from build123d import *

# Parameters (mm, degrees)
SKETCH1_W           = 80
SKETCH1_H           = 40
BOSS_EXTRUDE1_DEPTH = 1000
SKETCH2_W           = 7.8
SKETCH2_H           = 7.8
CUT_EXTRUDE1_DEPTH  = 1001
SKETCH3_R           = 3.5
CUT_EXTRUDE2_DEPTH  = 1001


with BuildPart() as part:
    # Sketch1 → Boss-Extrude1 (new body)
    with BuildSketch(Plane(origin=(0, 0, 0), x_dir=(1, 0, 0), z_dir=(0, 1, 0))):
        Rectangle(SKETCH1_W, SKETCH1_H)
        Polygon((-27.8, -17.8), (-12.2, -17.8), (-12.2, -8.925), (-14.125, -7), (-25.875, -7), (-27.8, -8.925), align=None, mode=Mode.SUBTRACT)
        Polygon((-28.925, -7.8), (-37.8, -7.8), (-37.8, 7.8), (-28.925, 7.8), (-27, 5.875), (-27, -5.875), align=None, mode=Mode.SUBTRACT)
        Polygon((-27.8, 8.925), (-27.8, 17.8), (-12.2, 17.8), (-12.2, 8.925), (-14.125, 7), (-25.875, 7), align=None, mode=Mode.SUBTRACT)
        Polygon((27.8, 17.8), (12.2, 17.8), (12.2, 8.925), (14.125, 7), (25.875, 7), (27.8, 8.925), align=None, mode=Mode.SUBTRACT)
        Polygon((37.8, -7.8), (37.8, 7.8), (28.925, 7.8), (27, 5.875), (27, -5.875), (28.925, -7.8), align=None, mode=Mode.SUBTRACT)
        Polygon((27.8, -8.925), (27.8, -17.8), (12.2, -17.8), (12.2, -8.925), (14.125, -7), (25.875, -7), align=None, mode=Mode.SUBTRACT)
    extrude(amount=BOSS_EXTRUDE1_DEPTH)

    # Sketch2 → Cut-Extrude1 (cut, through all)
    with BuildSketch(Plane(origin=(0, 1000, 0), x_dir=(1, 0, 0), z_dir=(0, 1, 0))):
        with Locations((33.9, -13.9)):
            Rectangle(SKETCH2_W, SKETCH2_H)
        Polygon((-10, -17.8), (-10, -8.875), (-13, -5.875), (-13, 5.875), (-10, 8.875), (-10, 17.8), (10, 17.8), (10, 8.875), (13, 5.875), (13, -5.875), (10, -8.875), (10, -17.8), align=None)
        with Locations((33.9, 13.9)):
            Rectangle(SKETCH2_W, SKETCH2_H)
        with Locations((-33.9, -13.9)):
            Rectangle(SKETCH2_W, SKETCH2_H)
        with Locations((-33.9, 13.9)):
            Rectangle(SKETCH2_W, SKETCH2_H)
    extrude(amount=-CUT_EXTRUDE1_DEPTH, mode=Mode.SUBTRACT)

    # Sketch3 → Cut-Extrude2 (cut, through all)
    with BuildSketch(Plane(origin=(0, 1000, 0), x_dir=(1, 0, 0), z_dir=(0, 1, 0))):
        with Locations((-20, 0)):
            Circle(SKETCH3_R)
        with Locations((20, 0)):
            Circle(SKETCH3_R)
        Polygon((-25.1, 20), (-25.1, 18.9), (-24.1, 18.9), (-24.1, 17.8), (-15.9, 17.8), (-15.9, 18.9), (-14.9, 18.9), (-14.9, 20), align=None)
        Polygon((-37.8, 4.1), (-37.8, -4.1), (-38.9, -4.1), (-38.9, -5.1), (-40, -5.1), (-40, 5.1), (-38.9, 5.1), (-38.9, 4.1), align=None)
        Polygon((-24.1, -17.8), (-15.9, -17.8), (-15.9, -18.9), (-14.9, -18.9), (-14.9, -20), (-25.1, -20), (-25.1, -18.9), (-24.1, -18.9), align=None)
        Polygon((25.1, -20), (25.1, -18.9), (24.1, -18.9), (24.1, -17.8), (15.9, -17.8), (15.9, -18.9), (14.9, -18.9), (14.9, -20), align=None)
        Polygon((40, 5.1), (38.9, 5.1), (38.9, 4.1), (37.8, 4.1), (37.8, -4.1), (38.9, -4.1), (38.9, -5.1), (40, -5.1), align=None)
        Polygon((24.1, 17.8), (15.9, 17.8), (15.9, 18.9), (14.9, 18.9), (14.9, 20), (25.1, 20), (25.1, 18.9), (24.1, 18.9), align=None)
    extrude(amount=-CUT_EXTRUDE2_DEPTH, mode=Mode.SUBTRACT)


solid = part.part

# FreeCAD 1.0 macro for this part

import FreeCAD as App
import Part
import Sketcher


def add_polygon(sketch, points):
    """Adds a closed chain of lines whose ends are joined by coincident constraints."""
    first, n = sketch.GeometryCount, len(points)
    for a, b in zip(points, points[1:] + points[:1]):
        sketch.addGeometry(Part.LineSegment(App.Vector(*a, 0), App.Vector(*b, 0)), False)
    for i in range(n):
        sketch.addConstraint(Sketcher.Constraint("Coincident", first + i, 2, first + (i + 1) % n, 1))

doc = App.newDocument("Part")
body = doc.addObject("PartDesign::Body", "Body")

sketch1 = doc.addObject("Sketcher::SketchObject", "Sketch")
body.addObject(sketch1)
sketch1.AttachmentSupport = (doc.XZ_Plane, [""])
sketch1.MapMode = "FlatFace"
add_polygon(sketch1, [(-40, -20), (-40, 20), (40, 20), (40, -20)])
add_polygon(sketch1, [(-12.2, 17.8), (-27.8, 17.8), (-27.8, 8.925), (-25.875, 7), (-14.125, 7), (-12.2, 8.925)])
add_polygon(sketch1, [(25.875, 7), (27.8, 8.925), (27.8, 17.8), (12.2, 17.8), (12.2, 8.925), (14.125, 7)])
add_polygon(sketch1, [(-27, 5.875), (-28.925, 7.8), (-37.8, 7.8), (-37.8, -7.8), (-28.925, -7.8), (-27, -5.875)])
add_polygon(sketch1, [(-25.875, -7), (-27.8, -8.925), (-27.8, -17.8), (-12.2, -17.8), (-12.2, -8.925), (-14.125, -7)])
add_polygon(sketch1, [(37.8, -7.8), (37.8, 7.8), (28.925, 7.8), (27, 5.875), (27, -5.875), (28.925, -7.8)])
add_polygon(sketch1, [(12.2, -17.8), (27.8, -17.8), (27.8, -8.925), (25.875, -7), (14.125, -7), (12.2, -8.925)])
sketch1.addConstraint([
    Sketcher.Constraint("Vertical", 0),
    Sketcher.Constraint("Horizontal", 1),
    Sketcher.Constraint("Vertical", 2),
    Sketcher.Constraint("Horizontal", 3),
    Sketcher.Constraint("Horizontal", 4),
    Sketcher.Constraint("Vertical", 5),
    Sketcher.Constraint("Horizontal", 7),
    Sketcher.Constraint("Vertical", 9),
    Sketcher.Constraint("Vertical", 11),
    Sketcher.Constraint("Horizontal", 12),
    Sketcher.Constraint("Vertical", 13),
    Sketcher.Constraint("Horizontal", 15),
    Sketcher.Constraint("Horizontal", 17),
    Sketcher.Constraint("Vertical", 18),
    Sketcher.Constraint("Horizontal", 19),
    Sketcher.Constraint("Vertical", 21),
    Sketcher.Constraint("Vertical", 23),
    Sketcher.Constraint("Horizontal", 24),
    Sketcher.Constraint("Vertical", 25),
    Sketcher.Constraint("Horizontal", 27),
    Sketcher.Constraint("Vertical", 28),
    Sketcher.Constraint("Horizontal", 29),
    Sketcher.Constraint("Vertical", 31),
    Sketcher.Constraint("Horizontal", 33),
    Sketcher.Constraint("Horizontal", 34),
    Sketcher.Constraint("Vertical", 35),
    Sketcher.Constraint("Horizontal", 37),
    Sketcher.Constraint("Vertical", 39),
    Sketcher.Constraint("Symmetric", 0, 2, 2, 2, -1, 1),
    Sketcher.Constraint("Symmetric", 10, 2, 22, 2, -1, 1),
    Sketcher.Constraint("Symmetric", 12, 2, 24, 2, -1, 1),
    Sketcher.Constraint("Symmetric", 14, 2, 26, 2, -1, 1),
    Sketcher.Constraint("Symmetric", 18, 2, 28, 2, -1, 1),
    Sketcher.Constraint("Symmetric", 20, 2, 30, 2, -1, 1),
    Sketcher.Constraint("Symmetric", 16, 2, 32, 2, -1, 1),
    Sketcher.Constraint("Symmetric", 4, 2, 34, 2, -1, 1),
    Sketcher.Constraint("Symmetric", 6, 2, 36, 2, -1, 1),
    Sketcher.Constraint("Symmetric", 8, 2, 38, 2, -1, 1),
    Sketcher.Constraint("Symmetric", 5, 2, 10, 2, -2),
    Sketcher.Constraint("Symmetric", 9, 2, 12, 2, -2),
    Sketcher.Constraint("Symmetric", 7, 2, 14, 2, -2),
    Sketcher.Constraint("Symmetric", 16, 2, 29, 2, -2),
    Sketcher.Constraint("Perpendicular", 6, 8),
    Sketcher.Constraint("Parallel", 8, 10),
    Sketcher.Constraint("Perpendicular", 10, 14),
    Sketcher.Constraint("Parallel", 14, 16),
    Sketcher.Constraint("Perpendicular", 16, 20),
    Sketcher.Constraint("Parallel", 20, 22),
    Sketcher.Constraint("Perpendicular", 22, 26),
    Sketcher.Constraint("Perpendicular", 26, 30),
    Sketcher.Constraint("Perpendicular", 30, 32),
    Sketcher.Constraint("Parallel", 32, 36),
    Sketcher.Constraint("Perpendicular", 36, 38),
    Sketcher.Constraint("Horizontal", 5, 2, 8, 2),
    Sketcher.Constraint("Horizontal", 10, 2, 13, 2),
    Sketcher.Constraint("Equal", 33, 5),
    Sketcher.Constraint("Equal", 34, 18),
    Sketcher.Constraint("Equal", 37, 21),
    Sketcher.Constraint("DistanceX", 1, 1, 1, 2, 80.0),
    Sketcher.Constraint("DistanceY", 0, 1, 0, 2, 40.0),
    Sketcher.Constraint("DistanceX", 4, 2, 4, 1, 15.6),
    Sketcher.Constraint("DistanceY", -1, 1, 6, 2, 7.0),
    Sketcher.Constraint("DistanceX", 20, 2, -1, 1, 27.0),
    Sketcher.Constraint("DistanceX", 8, 2, 10, 2, 40.0),
    Sketcher.Constraint("DistanceY", 16, 2, 4, 2, 10.0),
    Sketcher.Constraint("DistanceX", 7, 1, 7, 2, 11.75),
])
pad1 = doc.addObject("PartDesign::Pad", "Pad")
body.addObject(pad1)
pad1.Profile = sketch1
pad1.Length = 1000
pad1.Reversed = True

sketch2 = doc.addObject("Sketcher::SketchObject", "Sketch001")
body.addObject(sketch2)
sketch2.AttachmentSupport = (doc.XZ_Plane, [""])
sketch2.MapMode = "FlatFace"
sketch2.AttachmentOffset = App.Placement(App.Vector(0, 0, -1000), App.Rotation())
add_polygon(sketch2, [(30, 10), (30, 17.8), (37.8, 17.8), (37.8, 10)])
add_polygon(sketch2, [(-10, 8.875), (-10, 17.8), (10, 17.8), (10, 8.875), (13, 5.875), (13, -5.875), (10, -8.875), (10, -17.8), (-10, -17.8), (-10, -8.875), (-13, -5.875), (-13, 5.875)])
add_polygon(sketch2, [(30, -17.8), (30, -10), (37.8, -10), (37.8, -17.8)])
add_polygon(sketch2, [(-37.8, 10), (-37.8, 17.8), (-30, 17.8), (-30, 10)])
add_polygon(sketch2, [(-37.8, -17.8), (-37.8, -10), (-30, -10), (-30, -17.8)])
sketch2.addConstraint([
    Sketcher.Constraint("Vertical", 0),
    Sketcher.Constraint("Horizontal", 1),
    Sketcher.Constraint("Vertical", 2),
    Sketcher.Constraint("Horizontal", 3),
    Sketcher.Constraint("Vertical", 4),
    Sketcher.Constraint("Horizontal", 5),
    Sketcher.Constraint("Vertical", 6),
    Sketcher.Constraint("Vertical", 8),
    Sketcher.Constraint("Vertical", 10),
    Sketcher.Constraint("Horizontal", 11),
    Sketcher.Constraint("Vertical", 12),
    Sketcher.Constraint("Vertical", 14),
    Sketcher.Constraint("Vertical", 16),
    Sketcher.Constraint("Horizontal", 17),
    Sketcher.Constraint("Vertical", 18),
    Sketcher.Constraint("Horizontal", 19),
    Sketcher.Constraint("Vertical", 20),
    Sketcher.Constraint("Horizontal", 21),
    Sketcher.Constraint("Vertical", 22),
    Sketcher.Constraint("Horizontal", 23),
    Sketcher.Constraint("Vertical", 24),
    Sketcher.Constraint("Horizontal", 25),
    Sketcher.Constraint("Vertical", 26),
    Sketcher.Constraint("Horizontal", 27),
    Sketcher.Constraint("Symmetric", 4, 2, 10, 2, -1, 1),
    Sketcher.Constraint("Symmetric", 6, 2, 12, 2, -1, 1),
    Sketcher.Constraint("Symmetric", 7, 2, 13, 2, -1, 1),
    Sketcher.Constraint("Symmetric", 18, 2, 20, 2, -1, 1),
    Sketcher.Constraint("Symmetric", 16, 2, 22, 2, -1, 1),
    Sketcher.Constraint("Symmetric", 2, 2, 24, 2, -1, 1),
    Sketcher.Constraint("Symmetric", 0, 2, 26, 2, -1, 1),
    Sketcher.Constraint("Symmetric", 9, 2, 12, 2, -2),
    Sketcher.Constraint("Symmetric", 1, 2, 20, 2, -2),
    Sketcher.Constraint("Symmetric", 3, 2, 22, 2, -2),
    Sketcher.Constraint("Perpendicular", 7, 9),
    Sketcher.Constraint("Perpendicular", 13, 15),
    Sketcher.Constraint("Horizontal", 1, 2, 4, 2),
    Sketcher.Constraint("Horizontal", 8, 2, 13, 2),
    Sketcher.Constraint("Horizontal", 7, 2, 14, 2),
    Sketcher.Constraint("Equal", 27, 0),
    Sketcher.Constraint("DistanceX", 5, 1, 5, 2, 20.0),
    Sketcher.Constraint("DistanceX", 1, 1, 1, 2, 7.8),
    Sketcher.Constraint("DistanceX", -1, 1, 0, 2, 30.0),
    Sketcher.Constraint("DistanceY", -1, 1, 2, 2, 10.0),
    Sketcher.Constraint("DistanceX", -1, 1, 7, 2, 13.0),
    Sketcher.Constraint("DistanceY", 8, 2, 8, 1, 11.75),
])
pocket1 = doc.addObject("PartDesign::Pocket", "Pocket")
body.addObject(pocket1)
pocket1.Profile = sketch2
pocket1.Type = "ThroughAll"
pocket1.Reversed = True

sketch3 = doc.addObject("Sketcher::SketchObject", "Sketch002")
body.addObject(sketch3)
sketch3.AttachmentSupport = (doc.XZ_Plane, [""])
sketch3.MapMode = "FlatFace"
sketch3.AttachmentOffset = App.Placement(App.Vector(0, 0, -1000), App.Rotation())
sketch3.addGeometry(Part.Circle(App.Vector(-20, 0, 0), App.Vector(0, 0, 1), 3.5), False)
sketch3.addGeometry(Part.Circle(App.Vector(20, 0, 0), App.Vector(0, 0, 1), 3.5), False)
add_polygon(sketch3, [(-25.1, -20), (-25.1, -18.9), (-24.1, -18.9), (-24.1, -17.8), (-15.9, -17.8), (-15.9, -18.9), (-14.9, -18.9), (-14.9, -20)])
add_polygon(sketch3, [(-37.8, 4.1), (-37.8, -4.1), (-38.9, -4.1), (-38.9, -5.1), (-40, -5.1), (-40, 5.1), (-38.9, 5.1), (-38.9, 4.1)])
add_polygon(sketch3, [(-15.9, 17.8), (-24.1, 17.8), (-24.1, 18.9), (-25.1, 18.9), (-25.1, 20), (-14.9, 20), (-14.9, 18.9), (-15.9, 18.9)])
add_polygon(sketch3, [(25.1, 20), (25.1, 18.9), (24.1, 18.9), (24.1, 17.8), (15.9, 17.8), (15.9, 18.9), (14.9, 18.9), (14.9, 20)])
add_polygon(sketch3, [(40, -5.1), (38.9, -5.1), (38.9, -4.1), (37.8, -4.1), (37.8, 4.1), (38.9, 4.1), (38.9, 5.1), (40, 5.1)])
add_polygon(sketch3, [(15.9, -17.8), (24.1, -17.8), (24.1, -18.9), (25.1, -18.9), (25.1, -20), (14.9, -20), (14.9, -18.9), (15.9, -18.9)])
sketch3.addConstraint([
    Sketcher.Constraint("Vertical", 2),
    Sketcher.Constraint("Horizontal", 3),
    Sketcher.Constraint("Vertical", 4),
    Sketcher.Constraint("Horizontal", 5),
    Sketcher.Constraint("Vertical", 6),
    Sketcher.Constraint("Horizontal", 7),
    Sketcher.Constraint("Vertical", 8),
    Sketcher.Constraint("Horizontal", 9),
    Sketcher.Constraint("Vertical", 10),
    Sketcher.Constraint("Horizontal", 11),
    Sketcher.Constraint("Vertical", 12),
    Sketcher.Constraint("Horizontal", 13),
    Sketcher.Constraint("Vertical", 14),
    Sketcher.Constraint("Horizontal", 15),
    Sketcher.Constraint("Vertical", 16),
    Sketcher.Constraint("Horizontal", 17),
    Sketcher.Constraint("Horizontal", 18),
    Sketcher.Constraint("Vertical", 19),
    Sketcher.Constraint("Horizontal", 20),
    Sketcher.Constraint("Vertical", 21),
    Sketcher.Constraint("Horizontal", 22),
    Sketcher.Constraint("Vertical", 23),
    Sketcher.Constraint("Horizontal", 24),
    Sketcher.Constraint("Vertical", 25),
    Sketcher.Constraint("Vertical", 26),
    Sketcher.Constraint("Horizontal", 27),
    Sketcher.Constraint("Vertical", 28),
    Sketcher.Constraint("Horizontal", 29),
    Sketcher.Constraint("Vertical", 30),
    Sketcher.Constraint("Horizontal", 31),
    Sketcher.Constraint("Vertical", 32),
    Sketcher.Constraint("Horizontal", 33),
    Sketcher.Constraint("Horizontal", 34),
    Sketcher.Constraint("Vertical", 35),
    Sketcher.Constraint("Horizontal", 36),
    Sketcher.Constraint("Vertical", 37),
    Sketcher.Constraint("Horizontal", 38),
    Sketcher.Constraint("Vertical", 39),
    Sketcher.Constraint("Horizontal", 40),
    Sketcher.Constraint("Vertical", 41),
    Sketcher.Constraint("Horizontal", 42),
    Sketcher.Constraint("Vertical", 43),
    Sketcher.Constraint("Horizontal", 44),
    Sketcher.Constraint("Vertical", 45),
    Sketcher.Constraint("Horizontal", 46),
    Sketcher.Constraint("Vertical", 47),
    Sketcher.Constraint("Horizontal", 48),
    Sketcher.Constraint("Vertical", 49),
    Sketcher.Constraint("Equal", 0, 1),
    Sketcher.Constraint("Symmetric", 0, 3, 1, 3, -1, 1),
    Sketcher.Constraint("Symmetric", 2, 2, 26, 2, -1, 1),
    Sketcher.Constraint("Symmetric", 4, 2, 28, 2, -1, 1),
    Sketcher.Constraint("Symmetric", 6, 2, 30, 2, -1, 1),
    Sketcher.Constraint("Symmetric", 8, 2, 32, 2, -1, 1),
    Sketcher.Constraint("Symmetric", 15, 2, 34, 2, -1, 1),
    Sketcher.Constraint("Symmetric", 17, 2, 36, 2, -1, 1),
    Sketcher.Constraint("Symmetric", 11, 2, 38, 2, -1, 1),
    Sketcher.Constraint("Symmetric", 13, 2, 40, 2, -1, 1),
    Sketcher.Constraint("Symmetric", 18, 2, 42, 2, -1, 1),
    Sketcher.Constraint("Symmetric", 20, 2, 44, 2, -1, 1),
    Sketcher.Constraint("Symmetric", 22, 2, 46, 2, -1, 1),
    Sketcher.Constraint("Symmetric", 24, 2, 48, 2, -1, 1),
    Sketcher.Constraint("Symmetric", 20, 2, 26, 2, -2),
    Sketcher.Constraint("Symmetric", 18, 2, 28, 2, -2),
    Sketcher.Constraint("Symmetric", 24, 2, 30, 2, -2),
    Sketcher.Constraint("Symmetric", 22, 2, 32, 2, -2),
    Sketcher.Constraint("Symmetric", 12, 2, 34, 2, -2),
    Sketcher.Constraint("PointOnObject", 0, 3, -1),
    Sketcher.Constraint("Horizontal", 3, 2, 6, 2),
    Sketcher.Constraint("Horizontal", 11, 2, 35, 2),
    Sketcher.Constraint("Equal", 3, 7),
    Sketcher.Constraint("Equal", 11, 13),
    Sketcher.Constraint("Equal", 40, 2),
    Sketcher.Constraint("Equal", 2, 4),
    Sketcher.Constraint("Equal", 42, 10),
    Sketcher.Constraint("Equal", 48, 12),
    Sketcher.Constraint("Diameter", 0, 7.0),
    Sketcher.Constraint("DistanceX", 3, 1, 3, 2, 1.0),
    Sketcher.Constraint("DistanceX", 5, 1, 5, 2, 8.2),
    Sketcher.Constraint("DistanceX", 11, 2, 11, 1, 1.1),
    Sketcher.Constraint("DistanceX", 0, 3, -1, 1, 20.0),
    Sketcher.Constraint("DistanceY", 8, 2, -1, 1, 20.0),
    Sketcher.Constraint("DistanceX", 13, 2, -1, 1, 40.0),
    Sketcher.Constraint("DistanceX", 23, 2, 26, 2, 40.0),
])
pocket2 = doc.addObject("PartDesign::Pocket", "Pocket001")
body.addObject(pocket2)
pocket2.Profile = sketch3
pocket2.Type = "ThroughAll"
pocket2.Reversed = True

doc.recompute()
